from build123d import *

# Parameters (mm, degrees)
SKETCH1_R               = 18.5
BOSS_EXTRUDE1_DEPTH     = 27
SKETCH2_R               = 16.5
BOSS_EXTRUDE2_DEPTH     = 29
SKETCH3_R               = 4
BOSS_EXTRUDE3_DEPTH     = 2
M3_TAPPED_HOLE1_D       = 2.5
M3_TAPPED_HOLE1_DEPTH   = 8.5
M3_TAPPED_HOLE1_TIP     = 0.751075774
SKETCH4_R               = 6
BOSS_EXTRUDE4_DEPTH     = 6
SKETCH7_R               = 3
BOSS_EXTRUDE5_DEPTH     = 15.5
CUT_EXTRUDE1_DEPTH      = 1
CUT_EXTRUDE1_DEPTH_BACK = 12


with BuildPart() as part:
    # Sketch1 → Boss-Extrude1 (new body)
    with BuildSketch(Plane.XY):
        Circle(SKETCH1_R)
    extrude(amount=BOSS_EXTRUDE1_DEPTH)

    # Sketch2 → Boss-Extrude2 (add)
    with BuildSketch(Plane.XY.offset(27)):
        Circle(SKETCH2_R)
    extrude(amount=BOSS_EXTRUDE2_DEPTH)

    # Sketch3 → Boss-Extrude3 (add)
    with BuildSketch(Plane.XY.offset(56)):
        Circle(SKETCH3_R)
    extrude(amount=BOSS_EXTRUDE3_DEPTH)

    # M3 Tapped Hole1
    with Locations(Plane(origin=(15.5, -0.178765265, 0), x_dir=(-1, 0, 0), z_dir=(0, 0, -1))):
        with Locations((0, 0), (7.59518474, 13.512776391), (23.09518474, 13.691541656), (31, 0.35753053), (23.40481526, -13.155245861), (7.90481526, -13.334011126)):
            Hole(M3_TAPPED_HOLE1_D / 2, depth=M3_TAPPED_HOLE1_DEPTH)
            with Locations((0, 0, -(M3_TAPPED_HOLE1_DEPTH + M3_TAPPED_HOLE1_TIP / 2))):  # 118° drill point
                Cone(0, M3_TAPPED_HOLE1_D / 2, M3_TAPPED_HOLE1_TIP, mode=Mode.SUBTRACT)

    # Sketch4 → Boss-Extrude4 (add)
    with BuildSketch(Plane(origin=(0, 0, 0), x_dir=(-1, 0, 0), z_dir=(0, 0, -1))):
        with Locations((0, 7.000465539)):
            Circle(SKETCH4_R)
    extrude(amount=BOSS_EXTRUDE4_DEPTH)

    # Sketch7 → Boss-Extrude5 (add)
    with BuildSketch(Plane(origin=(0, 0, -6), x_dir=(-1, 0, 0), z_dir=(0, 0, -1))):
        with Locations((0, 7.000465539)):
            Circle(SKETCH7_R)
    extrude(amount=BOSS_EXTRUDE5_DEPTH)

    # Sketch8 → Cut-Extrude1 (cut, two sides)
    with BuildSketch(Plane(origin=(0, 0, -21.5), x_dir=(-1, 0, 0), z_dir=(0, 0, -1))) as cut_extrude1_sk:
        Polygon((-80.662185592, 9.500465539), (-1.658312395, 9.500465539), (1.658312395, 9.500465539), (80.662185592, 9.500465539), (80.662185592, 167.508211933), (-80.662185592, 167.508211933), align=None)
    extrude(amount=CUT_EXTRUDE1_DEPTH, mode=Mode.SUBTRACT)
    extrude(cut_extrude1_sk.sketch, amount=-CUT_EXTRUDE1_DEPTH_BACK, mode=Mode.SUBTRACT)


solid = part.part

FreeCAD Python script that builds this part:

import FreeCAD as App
import Part
import Sketcher
from FreeCAD import Vector

doc = App.newDocument("Part")
body = doc.addObject("PartDesign::Body", "Body")

# Sketch on XY plane
sketch1 = body.newObject("Sketcher::SketchObject", "Sketch")
sketch1.AttachmentSupport = (doc.getObject("XY_Plane"), [""])
sketch1.MapMode = "FlatFace"
sketch1.addGeometry(Part.Circle(Vector(0, 0, 0), Vector(0, 0, 1), 18.5), False)
sketch1.addConstraint([
    Sketcher.Constraint("Coincident", 0, 3, -1, 1),
    Sketcher.Constraint("Diameter", 0, 37.0),
])
pad1 = body.newObject("PartDesign::Pad", "Pad")
pad1.Profile = sketch1
pad1.Length = 27

# Sketch on XY plane
sketch2 = body.newObject("Sketcher::SketchObject", "Sketch001")
sketch2.AttachmentSupport = (doc.getObject("XY_Plane"), [""])
sketch2.MapMode = "FlatFace"
sketch2.AttachmentOffset = App.Placement(Vector(0, 0, 27), App.Rotation())
sketch2.addGeometry(Part.Circle(Vector(0, 0, 0), Vector(0, 0, 1), 16.5), False)
sketch2.addConstraint([
    Sketcher.Constraint("Coincident", 0, 3, -1, 1),
    Sketcher.Constraint("Diameter", 0, 33.0),
])
pad2 = body.newObject("PartDesign::Pad", "Pad001")
pad2.Profile = sketch2
pad2.Length = 29

# Sketch on XY plane
sketch3 = body.newObject("Sketcher::SketchObject", "Sketch002")
sketch3.AttachmentSupport = (doc.getObject("XY_Plane"), [""])
sketch3.MapMode = "FlatFace"
sketch3.AttachmentOffset = App.Placement(Vector(0, 0, 56), App.Rotation())
sketch3.addGeometry(Part.Circle(Vector(0, 0, 0), Vector(0, 0, 1), 4), False)
sketch3.addConstraint([
    Sketcher.Constraint("Coincident", 0, 3, -1, 1),
    Sketcher.Constraint("Diameter", 0, 8.0),
])
pad3 = body.newObject("PartDesign::Pad", "Pad002")
pad3.Profile = sketch3
pad3.Length = 2

# Sketch on XY plane
sketch4 = body.newObject("Sketcher::SketchObject", "Sketch003")
sketch4.AttachmentSupport = (doc.getObject("XY_Plane"), [""])
sketch4.MapMode = "FlatFace"
sketch4.addGeometry([
    Part.Circle(Vector(15.5, -0.178765, 0), Vector(0, 0, 1), 1.25),  # 0
    Part.Circle(Vector(7.904815, 13.334011, 0), Vector(0, 0, 1), 1.25),  # 1
    Part.Circle(Vector(-7.595185, 13.512776, 0), Vector(0, 0, 1), 1.25),  # 2
    Part.Circle(Vector(-15.5, 0.178765, 0), Vector(0, 0, 1), 1.25),  # 3
    Part.Circle(Vector(-7.904815, -13.334011, 0), Vector(0, 0, 1), 1.25),  # 4
    Part.Circle(Vector(7.595185, -13.512776, 0), Vector(0, 0, 1), 1.25),  # 5
], False)
sketch4.addConstraint([
    Sketcher.Constraint("Equal", 0, 1),
    Sketcher.Constraint("Equal", 1, 2),
    Sketcher.Constraint("Equal", 2, 3),
    Sketcher.Constraint("Equal", 3, 4),
    Sketcher.Constraint("Equal", 4, 5),
    Sketcher.Constraint("Symmetric", 0, 3, 3, 3, -1, 1),
    Sketcher.Constraint("Symmetric", 1, 3, 4, 3, -1, 1),
    Sketcher.Constraint("Symmetric", 2, 3, 5, 3, -1, 1),
    Sketcher.Constraint("Diameter", 0, 2.5),
    Sketcher.Constraint("DistanceX", 3, 3, 0, 3, 31.0),
    Sketcher.Constraint("DistanceX", 2, 3, 1, 3, 15.5),
    Sketcher.Constraint("DistanceY", -1, 1, 1, 3, 13.334011),
    Sketcher.Constraint("DistanceY", 0, 3, 2, 3, 13.691542),
    Sketcher.Constraint("DistanceY", 3, 3, 2, 3, 13.334011),
    Sketcher.Constraint("DistanceX", 4, 3, 2, 3, 0.309631),
])
doc.recompute()
hole = body.newObject("PartDesign::Hole", "Hole")
hole.Profile = sketch4
hole.ThreadType = "None"
hole.Diameter = 2.5
hole.DepthType = "Dimension"
hole.Depth = 8.5
hole.DrillPoint = "Angled"
hole.DrillPointAngle = 118
hole.Reversed = True

# Sketch on XY plane
sketch5 = body.newObject("Sketcher::SketchObject", "Sketch004")
sketch5.AttachmentSupport = (doc.getObject("XY_Plane"), [""])
sketch5.MapMode = "FlatFace"
sketch5.addGeometry(Part.Circle(Vector(0, 7.000466, 0), Vector(0, 0, 1), 6), False)
sketch5.addConstraint([
    Sketcher.Constraint("PointOnObject", 0, 3, -2),
    Sketcher.Constraint("Diameter", 0, 12.0),
    Sketcher.Constraint("DistanceY", -1, 1, 0, 3, 7.000466),
])
pad4 = body.newObject("PartDesign::Pad", "Pad003")
pad4.Profile = sketch5
pad4.Length = 6
pad4.Reversed = True

# Sketch on XY plane
sketch6 = body.newObject("Sketcher::SketchObject", "Sketch005")
sketch6.AttachmentSupport = (doc.getObject("XY_Plane"), [""])
sketch6.MapMode = "FlatFace"
sketch6.AttachmentOffset = App.Placement(Vector(0, 0, -6), App.Rotation())
sketch6.addGeometry(Part.Circle(Vector(0, 7.000466, 0), Vector(0, 0, 1), 3), False)
sketch6.addConstraint([
    Sketcher.Constraint("PointOnObject", 0, 3, -2),
    Sketcher.Constraint("Diameter", 0, 6.0),
    Sketcher.Constraint("DistanceY", -1, 1, 0, 3, 7.000466),
])
pad5 = body.newObject("PartDesign::Pad", "Pad004")
pad5.Profile = sketch6
pad5.Length = 15.5
pad5.Reversed = True

# Sketch on XY plane
sketch7 = body.newObject("Sketcher::SketchObject", "Sketch006")
sketch7.AttachmentSupport = (doc.getObject("XY_Plane"), [""])
sketch7.MapMode = "FlatFace"
sketch7.AttachmentOffset = App.Placement(Vector(0, 0, -21.5), App.Rotation())
sketch7.addGeometry([
    Part.LineSegment(Vector(80.662186, 9.500466, 0), Vector(-80.662186, 9.500466, 0)),
    Part.LineSegment(Vector(-80.662186, 9.500466, 0), Vector(-80.662186, 167.508212, 0)),
    Part.LineSegment(Vector(-80.662186, 167.508212, 0), Vector(80.662186, 167.508212, 0)),
    Part.LineSegment(Vector(80.662186, 167.508212, 0), Vector(80.662186, 9.500466, 0)),
], False)
sketch7.addConstraint([
    Sketcher.Constraint("Coincident", 0, 2, 1, 1),
    Sketcher.Constraint("Coincident", 1, 2, 2, 1),
    Sketcher.Constraint("Coincident", 2, 2, 3, 1),
    Sketcher.Constraint("Coincident", 3, 2, 0, 1),
    Sketcher.Constraint("Horizontal", 0),
    Sketcher.Constraint("Vertical", 1),
    Sketcher.Constraint("Horizontal", 2),
    Sketcher.Constraint("Vertical", 3),
    Sketcher.Constraint("DistanceX", 0, 2, 0, 1, 161.324371),
    Sketcher.Constraint("DistanceY", 1, 1, 1, 2, 158.007746),
    Sketcher.Constraint("DistanceY", -1, 1, 1, 2, 167.508212),
    Sketcher.Constraint("DistanceX", 0, 2, -1, 1, 80.662186),
])
pocket1 = body.newObject("PartDesign::Pocket", "Pocket")
pocket1.Profile = sketch7
pocket1.Type = "TwoLengths"
pocket1.Length = 1
pocket1.Length2 = 12

doc.recompute()
